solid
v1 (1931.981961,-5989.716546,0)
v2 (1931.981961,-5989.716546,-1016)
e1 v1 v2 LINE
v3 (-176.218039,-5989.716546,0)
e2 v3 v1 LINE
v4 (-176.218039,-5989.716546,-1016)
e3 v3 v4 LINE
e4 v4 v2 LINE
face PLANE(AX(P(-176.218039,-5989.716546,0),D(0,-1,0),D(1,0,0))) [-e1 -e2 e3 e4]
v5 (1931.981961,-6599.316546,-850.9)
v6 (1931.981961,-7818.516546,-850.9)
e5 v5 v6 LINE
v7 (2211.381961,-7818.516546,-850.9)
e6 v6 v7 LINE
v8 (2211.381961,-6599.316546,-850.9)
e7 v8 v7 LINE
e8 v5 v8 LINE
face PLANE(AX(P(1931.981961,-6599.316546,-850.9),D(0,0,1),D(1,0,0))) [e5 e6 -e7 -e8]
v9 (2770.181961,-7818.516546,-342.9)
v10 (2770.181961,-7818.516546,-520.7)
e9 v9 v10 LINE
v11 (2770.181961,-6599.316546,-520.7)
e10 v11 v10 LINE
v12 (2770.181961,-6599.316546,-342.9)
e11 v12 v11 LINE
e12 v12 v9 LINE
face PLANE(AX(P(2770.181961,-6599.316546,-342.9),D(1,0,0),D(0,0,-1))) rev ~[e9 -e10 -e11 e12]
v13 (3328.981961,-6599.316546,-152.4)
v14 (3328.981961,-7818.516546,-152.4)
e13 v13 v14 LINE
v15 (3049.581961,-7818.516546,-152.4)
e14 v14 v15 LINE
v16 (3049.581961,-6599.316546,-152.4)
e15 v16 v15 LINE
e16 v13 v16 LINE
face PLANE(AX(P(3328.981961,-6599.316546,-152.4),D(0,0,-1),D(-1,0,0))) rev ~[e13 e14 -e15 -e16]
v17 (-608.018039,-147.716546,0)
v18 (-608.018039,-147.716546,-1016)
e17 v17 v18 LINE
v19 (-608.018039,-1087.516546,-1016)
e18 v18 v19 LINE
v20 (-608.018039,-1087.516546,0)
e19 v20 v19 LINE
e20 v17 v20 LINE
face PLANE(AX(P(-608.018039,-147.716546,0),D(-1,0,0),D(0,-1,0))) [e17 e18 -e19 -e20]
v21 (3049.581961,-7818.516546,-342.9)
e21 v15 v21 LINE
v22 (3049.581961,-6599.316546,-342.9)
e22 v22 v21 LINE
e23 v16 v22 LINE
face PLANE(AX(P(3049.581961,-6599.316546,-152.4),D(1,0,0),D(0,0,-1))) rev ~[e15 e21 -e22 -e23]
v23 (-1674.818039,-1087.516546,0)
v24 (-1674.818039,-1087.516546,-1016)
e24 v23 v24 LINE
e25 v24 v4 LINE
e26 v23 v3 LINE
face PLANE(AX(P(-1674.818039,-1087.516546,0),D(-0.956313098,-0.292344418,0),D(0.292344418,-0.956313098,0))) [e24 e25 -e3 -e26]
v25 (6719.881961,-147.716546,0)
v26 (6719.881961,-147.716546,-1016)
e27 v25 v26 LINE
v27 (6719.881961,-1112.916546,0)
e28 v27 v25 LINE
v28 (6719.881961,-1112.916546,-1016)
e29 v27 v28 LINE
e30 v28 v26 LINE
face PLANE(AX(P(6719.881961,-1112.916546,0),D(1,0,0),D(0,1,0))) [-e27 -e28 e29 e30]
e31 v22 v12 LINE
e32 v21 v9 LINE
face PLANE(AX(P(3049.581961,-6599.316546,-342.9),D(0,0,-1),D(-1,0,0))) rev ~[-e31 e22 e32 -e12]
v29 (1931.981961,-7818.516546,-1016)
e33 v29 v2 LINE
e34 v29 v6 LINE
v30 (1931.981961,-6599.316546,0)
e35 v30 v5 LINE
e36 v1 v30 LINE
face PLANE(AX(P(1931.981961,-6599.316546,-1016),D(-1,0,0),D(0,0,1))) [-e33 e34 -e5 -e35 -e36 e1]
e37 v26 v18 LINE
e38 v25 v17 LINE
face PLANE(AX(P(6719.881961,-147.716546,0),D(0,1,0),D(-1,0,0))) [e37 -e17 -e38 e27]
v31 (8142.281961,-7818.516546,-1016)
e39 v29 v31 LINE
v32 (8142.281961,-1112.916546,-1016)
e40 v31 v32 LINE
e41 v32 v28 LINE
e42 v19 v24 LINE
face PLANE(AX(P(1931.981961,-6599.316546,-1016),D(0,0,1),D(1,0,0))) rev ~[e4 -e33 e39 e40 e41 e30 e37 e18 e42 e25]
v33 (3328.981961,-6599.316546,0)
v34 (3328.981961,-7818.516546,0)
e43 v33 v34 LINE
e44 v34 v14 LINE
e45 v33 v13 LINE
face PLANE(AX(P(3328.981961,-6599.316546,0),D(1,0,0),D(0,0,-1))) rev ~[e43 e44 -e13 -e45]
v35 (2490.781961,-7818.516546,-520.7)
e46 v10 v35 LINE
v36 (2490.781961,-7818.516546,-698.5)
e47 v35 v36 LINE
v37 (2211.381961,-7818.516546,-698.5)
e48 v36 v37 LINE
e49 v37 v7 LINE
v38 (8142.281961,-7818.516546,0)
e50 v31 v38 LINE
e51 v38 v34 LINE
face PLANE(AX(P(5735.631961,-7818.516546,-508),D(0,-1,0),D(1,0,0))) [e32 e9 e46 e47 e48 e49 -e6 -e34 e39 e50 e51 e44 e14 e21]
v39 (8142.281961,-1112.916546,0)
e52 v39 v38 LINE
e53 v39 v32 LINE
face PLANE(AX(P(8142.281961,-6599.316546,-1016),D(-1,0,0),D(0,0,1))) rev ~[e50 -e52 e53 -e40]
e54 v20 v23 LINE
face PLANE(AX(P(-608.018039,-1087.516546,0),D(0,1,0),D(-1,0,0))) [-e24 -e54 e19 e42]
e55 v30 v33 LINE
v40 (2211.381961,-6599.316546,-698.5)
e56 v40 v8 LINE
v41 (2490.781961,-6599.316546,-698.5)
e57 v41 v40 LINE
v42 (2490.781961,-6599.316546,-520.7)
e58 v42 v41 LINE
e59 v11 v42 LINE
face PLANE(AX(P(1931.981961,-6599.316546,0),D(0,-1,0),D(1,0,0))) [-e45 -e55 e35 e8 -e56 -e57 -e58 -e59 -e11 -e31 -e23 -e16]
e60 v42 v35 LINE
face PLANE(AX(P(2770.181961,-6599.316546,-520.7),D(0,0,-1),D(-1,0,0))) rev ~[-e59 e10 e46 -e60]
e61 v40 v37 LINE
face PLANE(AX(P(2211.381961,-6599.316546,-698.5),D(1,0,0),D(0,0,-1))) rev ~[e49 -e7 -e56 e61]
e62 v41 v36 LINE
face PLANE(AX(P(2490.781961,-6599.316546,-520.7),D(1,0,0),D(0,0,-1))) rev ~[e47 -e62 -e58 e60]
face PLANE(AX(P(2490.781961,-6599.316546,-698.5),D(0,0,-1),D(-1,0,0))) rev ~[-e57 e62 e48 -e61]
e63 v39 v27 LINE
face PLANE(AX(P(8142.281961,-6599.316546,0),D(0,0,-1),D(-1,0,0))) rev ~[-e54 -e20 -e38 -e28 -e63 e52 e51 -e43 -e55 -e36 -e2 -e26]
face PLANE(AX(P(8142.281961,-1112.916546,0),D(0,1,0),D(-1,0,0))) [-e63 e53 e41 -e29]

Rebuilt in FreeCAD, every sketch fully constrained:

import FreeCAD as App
import Part
import Sketcher

V = App.Vector
Q = App.Units.Quantity

doc = App.newDocument("Part")
body = doc.addObject("PartDesign::Body", "Body")

# Sketch on XY plane
sketch1 = body.newObject("Sketcher::SketchObject", "Sketch")
sketch1.AttachmentSupport = (doc.getObject("XY_Plane"), [""])
sketch1.MapMode = "FlatFace"
sketch1.addGeometry([
    Part.LineSegment(V(6719.881961, -147.716546, 0), V(-608.018039, -147.716546, 0)),  # 0
    Part.LineSegment(V(-608.018039, -147.716546, 0), V(-608.018039, -1087.516546, 0)),  # 1
    Part.LineSegment(V(-608.018039, -1087.516546, 0), V(-1674.818039, -1087.516546, 0)),  # 2
    Part.LineSegment(V(-1674.818039, -1087.516546, 0), V(-176.218039, -5989.716546, 0)),  # 3
    Part.LineSegment(V(-176.218039, -5989.716546, 0), V(1931.981961, -5989.716546, 0)),  # 4
    Part.LineSegment(V(1931.981961, -5989.716546, 0), V(1931.981961, -6599.316546, 0)),  # 5
    Part.LineSegment(V(1931.981961, -6599.316546, 0), V(8142.281961, -6599.316546, 0)),  # 6
    Part.LineSegment(V(8142.281961, -6599.316546, 0), V(8142.281961, -1112.916546, 0)),  # 7
    Part.LineSegment(V(8142.281961, -1112.916546, 0), V(6719.881961, -1112.916546, 0)),  # 8
    Part.LineSegment(V(6719.881961, -1112.916546, 0), V(6719.881961, -147.716546, 0)),  # 9
], False)
sketch1.addConstraint([
    Sketcher.Constraint("Coincident", 0, 2, 1, 1),
    Sketcher.Constraint("Coincident", 1, 2, 2, 1),
    Sketcher.Constraint("Coincident", 2, 2, 3, 1),
    Sketcher.Constraint("Coincident", 3, 2, 4, 1),
    Sketcher.Constraint("Coincident", 4, 2, 5, 1),
    Sketcher.Constraint("Coincident", 5, 2, 6, 1),
    Sketcher.Constraint("Coincident", 6, 2, 7, 1),
    Sketcher.Constraint("Coincident", 7, 2, 8, 1),
    Sketcher.Constraint("Coincident", 8, 2, 9, 1),
    Sketcher.Constraint("Coincident", 9, 2, 0, 1),
    Sketcher.Constraint("Horizontal", 0),
    Sketcher.Constraint("Vertical", 1),
    Sketcher.Constraint("Horizontal", 2),
    Sketcher.Constraint("Horizontal", 4),
    Sketcher.Constraint("Vertical", 5),
    Sketcher.Constraint("Horizontal", 6),
    Sketcher.Constraint("Vertical", 7),
    Sketcher.Constraint("Horizontal", 8),
    Sketcher.Constraint("Vertical", 9),
    Sketcher.Constraint("DistanceX", 2, 2, 2, 1, Q("42 in")),
    Sketcher.Constraint("DistanceX", 4, 1, 4, 2, Q("83 in")),
    Sketcher.Constraint("DistanceX", 8, 2, 8, 1, Q("56 in")),
    Sketcher.Constraint("DistanceY", 1, 2, 1, 1, Q("37 in")),
    Sketcher.Constraint("DistanceY", 5, 2, 5, 1, Q("24 in")),
    Sketcher.Constraint("DistanceY", 7, 1, 7, 2, Q("216 in")),
    Sketcher.Constraint("DistanceY", 9, 1, 9, 2, Q("38 in")),
    Sketcher.Constraint("DistanceX", 0, 2, 0, 1, Q("288.5 in")),
    Sketcher.Constraint("DistanceX", 6, 1, 6, 2, Q("244.5 in")),
    Sketcher.Constraint("DistanceX", 0, 2, -1, 1, 608.018039),
    Sketcher.Constraint("DistanceY", 0, 2, -1, 1, 147.716546),
])
pad1 = body.newObject("PartDesign::Pad", "Pad")
pad1.Profile = sketch1
pad1.Length = Q("40 in")
pad1.Reversed = True

# Sketch on XZ plane
sketch2 = body.newObject("Sketcher::SketchObject", "Sketch001")
sketch2.AttachmentSupport = (doc.getObject("XZ_Plane"), [""])
sketch2.MapMode = "FlatFace"
sketch2.AttachmentOffset = App.Placement(V(0, 0, 6599.316546), App.Rotation())
sketch2.addGeometry([
    Part.LineSegment(V(8142.281961, -1016, 0), V(8142.281961, 0, 0)),  # 0
    Part.LineSegment(V(8142.281961, 0, 0), V(3328.981961, 0, 0)),  # 1
    Part.LineSegment(V(3328.981961, 0, 0), V(3328.981961, -152.4, 0)),  # 2
    Part.LineSegment(V(3328.981961, -152.4, 0), V(3049.581961, -152.4, 0)),  # 3
    Part.LineSegment(V(3049.581961, -152.4, 0), V(3049.581961, -342.9, 0)),  # 4
    Part.LineSegment(V(3049.581961, -342.9, 0), V(2770.181961, -342.9, 0)),  # 5
    Part.LineSegment(V(2770.181961, -342.9, 0), V(2770.181961, -520.7, 0)),  # 6
    Part.LineSegment(V(2770.181961, -520.7, 0), V(2490.781961, -520.7, 0)),  # 7
    Part.LineSegment(V(2490.781961, -520.7, 0), V(2490.781961, -698.5, 0)),  # 8
    Part.LineSegment(V(2490.781961, -698.5, 0), V(2211.381961, -698.5, 0)),  # 9
    Part.LineSegment(V(2211.381961, -698.5, 0), V(2211.381961, -850.9, 0)),  # 10
    Part.LineSegment(V(2211.381961, -850.9, 0), V(1931.981961, -850.9, 0)),  # 11
    Part.LineSegment(V(1931.981961, -850.9, 0), V(1931.981961, -1016, 0)),  # 12
    Part.LineSegment(V(1931.981961, -1016, 0), V(8142.281961, -1016, 0)),  # 13
], False)
sketch2.addConstraint([
    Sketcher.Constraint("Coincident", 0, 2, 1, 1),
    Sketcher.Constraint("Coincident", 1, 2, 2, 1),
    Sketcher.Constraint("Coincident", 2, 2, 3, 1),
    Sketcher.Constraint("Coincident", 3, 2, 4, 1),
    Sketcher.Constraint("Coincident", 4, 2, 5, 1),
    Sketcher.Constraint("Coincident", 5, 2, 6, 1),
    Sketcher.Constraint("Coincident", 6, 2, 7, 1),
    Sketcher.Constraint("Coincident", 7, 2, 8, 1),
    Sketcher.Constraint("Coincident", 8, 2, 9, 1),
    Sketcher.Constraint("Coincident", 9, 2, 10, 1),
    Sketcher.Constraint("Coincident", 10, 2, 11, 1),
    Sketcher.Constraint("Coincident", 11, 2, 12, 1),
    Sketcher.Constraint("Coincident", 12, 2, 13, 1),
    Sketcher.Constraint("Coincident", 13, 2, 0, 1),
    Sketcher.Constraint("Vertical", 0),
    Sketcher.Constraint("Horizontal", 1),
    Sketcher.Constraint("Vertical", 2),
    Sketcher.Constraint("Horizontal", 3),
    Sketcher.Constraint("Vertical", 4),
    Sketcher.Constraint("Horizontal", 5),
    Sketcher.Constraint("Vertical", 6),
    Sketcher.Constraint("Horizontal", 7),
    Sketcher.Constraint("Vertical", 8),
    Sketcher.Constraint("Horizontal", 9),
    Sketcher.Constraint("Vertical", 10),
    Sketcher.Constraint("Horizontal", 11),
    Sketcher.Constraint("Vertical", 12),
    Sketcher.Constraint("Horizontal", 13),
    Sketcher.Constraint("PointOnObject", 0, 2, -1),
    Sketcher.Constraint("Equal", 3, 5),
    Sketcher.Constraint("Equal", 5, 7),
    Sketcher.Constraint("Equal", 7, 9),
    Sketcher.Constraint("Equal", 9, 11),
    Sketcher.Constraint("Equal", 6, 8),
    Sketcher.Constraint("Equal", 2, 10),
    Sketcher.Constraint("DistanceX", 3, 2, 3, 1, Q("11 in")),
    Sketcher.Constraint("DistanceY", 0, 1, 0, 2, Q("40 in")),
    Sketcher.Constraint("DistanceY", 2, 2, 2, 1, Q("6 in")),
    Sketcher.Constraint("DistanceY", 6, 2, 6, 1, Q("7 in")),
    Sketcher.Constraint("DistanceX", 1, 2, 1, 1, Q("189.5 in")),
    Sketcher.Constraint("DistanceY", 4, 2, 4, 1, Q("7.5 in")),
    Sketcher.Constraint("DistanceX", -1, 1, 0, 2, 8142.281961),
])
pad2 = body.newObject("PartDesign::Pad", "Pad001")
pad2.Profile = sketch2
pad2.Length = Q("48 in")

doc.recompute()
